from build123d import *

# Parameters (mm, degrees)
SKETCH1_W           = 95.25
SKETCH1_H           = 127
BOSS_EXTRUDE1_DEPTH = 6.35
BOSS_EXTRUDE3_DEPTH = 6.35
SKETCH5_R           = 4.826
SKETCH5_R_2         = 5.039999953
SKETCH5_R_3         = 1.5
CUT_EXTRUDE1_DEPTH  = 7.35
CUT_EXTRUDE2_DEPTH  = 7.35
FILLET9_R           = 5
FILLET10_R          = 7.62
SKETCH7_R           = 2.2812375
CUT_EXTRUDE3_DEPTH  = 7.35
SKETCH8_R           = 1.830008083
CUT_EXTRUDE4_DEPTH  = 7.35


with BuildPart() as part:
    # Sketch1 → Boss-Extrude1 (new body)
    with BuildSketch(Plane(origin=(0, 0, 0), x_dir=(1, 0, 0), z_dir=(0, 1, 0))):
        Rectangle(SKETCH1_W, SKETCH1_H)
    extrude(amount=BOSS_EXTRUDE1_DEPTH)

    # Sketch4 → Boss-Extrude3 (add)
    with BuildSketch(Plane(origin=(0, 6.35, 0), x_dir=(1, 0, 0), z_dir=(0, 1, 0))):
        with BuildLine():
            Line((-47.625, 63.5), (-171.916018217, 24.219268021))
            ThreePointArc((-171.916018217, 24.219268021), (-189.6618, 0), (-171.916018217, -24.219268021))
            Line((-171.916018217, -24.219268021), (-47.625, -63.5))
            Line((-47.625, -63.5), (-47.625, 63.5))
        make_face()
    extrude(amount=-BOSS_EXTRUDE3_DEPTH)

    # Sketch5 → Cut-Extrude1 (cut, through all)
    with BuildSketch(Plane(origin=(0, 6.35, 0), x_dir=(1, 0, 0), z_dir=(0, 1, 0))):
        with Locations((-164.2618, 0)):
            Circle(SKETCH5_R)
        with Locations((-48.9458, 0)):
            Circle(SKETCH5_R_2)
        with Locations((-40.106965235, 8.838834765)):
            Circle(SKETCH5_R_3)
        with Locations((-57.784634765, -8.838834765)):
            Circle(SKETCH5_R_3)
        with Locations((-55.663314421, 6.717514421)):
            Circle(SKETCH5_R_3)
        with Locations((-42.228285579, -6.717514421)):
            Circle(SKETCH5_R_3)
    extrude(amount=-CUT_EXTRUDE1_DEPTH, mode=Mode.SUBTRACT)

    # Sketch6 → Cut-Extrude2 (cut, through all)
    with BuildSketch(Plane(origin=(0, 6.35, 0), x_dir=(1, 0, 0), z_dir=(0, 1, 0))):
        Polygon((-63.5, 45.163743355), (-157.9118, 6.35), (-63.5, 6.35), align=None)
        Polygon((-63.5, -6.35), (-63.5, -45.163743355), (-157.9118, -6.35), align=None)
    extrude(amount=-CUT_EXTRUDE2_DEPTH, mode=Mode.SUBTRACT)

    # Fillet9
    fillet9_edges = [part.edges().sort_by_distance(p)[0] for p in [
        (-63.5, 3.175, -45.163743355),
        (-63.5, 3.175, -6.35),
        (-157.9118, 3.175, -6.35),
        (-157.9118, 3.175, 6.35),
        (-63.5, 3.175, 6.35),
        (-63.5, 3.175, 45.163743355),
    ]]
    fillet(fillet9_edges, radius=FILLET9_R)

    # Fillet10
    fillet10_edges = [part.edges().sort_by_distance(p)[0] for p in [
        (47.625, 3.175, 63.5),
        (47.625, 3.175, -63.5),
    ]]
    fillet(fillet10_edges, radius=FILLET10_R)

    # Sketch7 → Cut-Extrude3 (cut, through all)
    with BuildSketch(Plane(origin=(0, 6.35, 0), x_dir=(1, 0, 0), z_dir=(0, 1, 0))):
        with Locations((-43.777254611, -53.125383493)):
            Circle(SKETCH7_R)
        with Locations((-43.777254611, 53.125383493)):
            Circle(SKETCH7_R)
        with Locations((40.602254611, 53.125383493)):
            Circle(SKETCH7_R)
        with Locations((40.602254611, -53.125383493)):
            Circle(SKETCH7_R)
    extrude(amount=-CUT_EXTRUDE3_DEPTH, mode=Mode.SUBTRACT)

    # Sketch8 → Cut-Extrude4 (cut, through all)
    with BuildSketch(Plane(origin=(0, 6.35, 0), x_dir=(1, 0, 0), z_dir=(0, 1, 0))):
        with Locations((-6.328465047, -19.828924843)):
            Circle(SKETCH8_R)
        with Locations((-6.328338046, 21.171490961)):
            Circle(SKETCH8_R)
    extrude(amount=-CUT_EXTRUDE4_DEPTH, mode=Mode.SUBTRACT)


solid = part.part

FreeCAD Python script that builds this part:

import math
import FreeCAD as App
import Part
import Sketcher
from FreeCAD import Vector
Q = App.Units.Quantity


def edges_at(feature, points):
    """Names of the edges that pass closest to the given points."""
    edges = feature.Shape.Edges
    near = lambda p: min(range(len(edges)), key=lambda i: edges[i].distToShape(Part.Vertex(*p))[0])
    return sorted({f"Edge{near(p) + 1}" for p in points})


def add_polygon(sketch, points):
    """Adds a closed chain of lines whose ends are joined by coincident constraints."""
    first, n = sketch.GeometryCount, len(points)
    for a, b in zip(points, points[1:] + points[:1]):
        sketch.addGeometry(Part.LineSegment(App.Vector(*a, 0), App.Vector(*b, 0)), False)
    for i in range(n):
        sketch.addConstraint(Sketcher.Constraint("Coincident", first + i, 2, first + (i + 1) % n, 1))

doc = App.newDocument("Part")
body = doc.addObject("PartDesign::Body", "Body")

sketch1 = doc.addObject("Sketcher::SketchObject", "Sketch")
body.addObject(sketch1)
sketch1.AttachmentSupport = (doc.XZ_Plane, [""])
sketch1.MapMode = "FlatFace"
add_polygon(sketch1, [(-48, -64), (-48, 64), (48, 64), (48, -64)])
sketch1.addConstraint(Sketcher.Constraint("Vertical", 0))
sketch1.addConstraint(Sketcher.Constraint("Horizontal", 1))
sketch1.addConstraint(Sketcher.Constraint("Vertical", 2))
sketch1.addConstraint(Sketcher.Constraint("Horizontal", 3))
sketch1.addConstraint(Sketcher.Constraint("Symmetric", 0, 2, 2, 2, -1, 1))
sketch1.addConstraint(Sketcher.Constraint("DistanceY", 0, 1, 0, 2, Q("5 in")))
sketch1.addConstraint(Sketcher.Constraint("DistanceX", 1, 1, 1, 2, Q("3.75 in")))
pad1 = doc.addObject("PartDesign::Pad", "Pad")
body.addObject(pad1)
pad1.Profile = sketch1
pad1.Length = Q("0.25 in")
pad1.Reversed = True

sketch2 = doc.addObject("Sketcher::SketchObject", "Sketch001")
body.addObject(sketch2)
sketch2.AttachmentSupport = (doc.XZ_Plane, [""])
sketch2.MapMode = "FlatFace"
sketch2.AttachmentOffset = App.Placement(Vector(0, 0, -0.25 * 25.4), App.Rotation())
sketch2.addGeometry(Part.LineSegment(Vector(-48, -64, 0), Vector(-172, -24, 0)), False)
sketch2.addGeometry(Part.ArcOfCircle(Part.Circle(Vector(-164, 0, 0), Vector(0, 0, 1), 25), math.radians(108), math.radians(252)), False)
sketch2.addGeometry(Part.LineSegment(Vector(-172, 24, 0), Vector(-48, 64, 0)), False)
sketch2.addGeometry(Part.LineSegment(Vector(-48, 64, 0), Vector(-48, -64, 0)), False)
sketch2.addConstraint(Sketcher.Constraint("Tangent", 0, 2, 1, 2))
sketch2.addConstraint(Sketcher.Constraint("Tangent", 1, 1, 2, 1))
sketch2.addConstraint(Sketcher.Constraint("Coincident", 2, 2, 3, 1))
sketch2.addConstraint(Sketcher.Constraint("Coincident", 3, 2, 0, 1))
sketch2.addConstraint(Sketcher.Constraint("Vertical", 3))
sketch2.addConstraint(Sketcher.Constraint("Symmetric", 0, 2, 1, 1, -1))
sketch2.addConstraint(Sketcher.Constraint("Radius", 1, Q("1 in")))
sketch2.addConstraint(Sketcher.Constraint("DistanceY", 3, 2, 3, 1, Q("5 in")))
sketch2.addConstraint(Sketcher.Constraint("DistanceX", 1, 3, -1, 1, Q("6.467 in")))
sketch2.addConstraint(Sketcher.Constraint("DistanceX", 2, 2, -1, 1, Q("1.875 in")))
pad2 = doc.addObject("PartDesign::Pad", "Pad001")
body.addObject(pad2)
pad2.Profile = sketch2
pad2.Length = Q("0.25 in")

sketch3 = doc.addObject("Sketcher::SketchObject", "Sketch002")
body.addObject(sketch3)
sketch3.AttachmentSupport = (doc.XZ_Plane, [""])
sketch3.MapMode = "FlatFace"
sketch3.AttachmentOffset = App.Placement(Vector(0, 0, -0.25 * 25.4), App.Rotation())
sketch3.addGeometry(Part.Circle(Vector(-164.3, 0, 0), Vector(0, 0, 1), 4.8), False)
sketch3.addGeometry(Part.Circle(Vector(-48.9, 0, 0), Vector(0, 0, 1), 5), False)
sketch3.addGeometry(Part.Circle(Vector(-40.1, -8.8, 0), Vector(0, 0, 1), 1.5), False)
sketch3.addGeometry(Part.Circle(Vector(-57.8, 8.8, 0), Vector(0, 0, 1), 1.5), False)
sketch3.addGeometry(Part.Circle(Vector(-55.7, -6.7, 0), Vector(0, 0, 1), 1.5), False)
sketch3.addGeometry(Part.Circle(Vector(-42.2, 6.7, 0), Vector(0, 0, 1), 1.5), False)
sketch3.addConstraint(Sketcher.Constraint("Equal", 2, 3))
sketch3.addConstraint(Sketcher.Constraint("Equal", 3, 4))
sketch3.addConstraint(Sketcher.Constraint("Equal", 4, 5))
sketch3.addConstraint(Sketcher.Constraint("PointOnObject", 0, 3, -1))
sketch3.addConstraint(Sketcher.Constraint("PointOnObject", 1, 3, -1))
sketch3.addConstraint(Sketcher.Constraint("Diameter", 0, Q("0.38 in")))
sketch3.addConstraint(Sketcher.Constraint("Diameter", 1, Q("10.08 mm")))
sketch3.addConstraint(Sketcher.Constraint("Diameter", 2, Q("3 mm")))
sketch3.addConstraint(Sketcher.Constraint("DistanceX", 0, 3, 1, 3, Q("4.54 in")))
sketch3.addConstraint(Sketcher.Constraint("DistanceX", 0, 3, -1, 1, Q("6.467 in")))
sketch3.addConstraint(Sketcher.Constraint("DistanceX", 3, 3, 2, 3, Q("17.67767 mm")))
sketch3.addConstraint(Sketcher.Constraint("DistanceY", 2, 3, 3, 3, Q("17.67767 mm")))
sketch3.addConstraint(Sketcher.Constraint("DistanceX", 3, 3, 4, 3, Q("2.12132 mm")))
sketch3.addConstraint(Sketcher.Constraint("DistanceY", 4, 3, 3, 3, Q("15.556349 mm")))
sketch3.addConstraint(Sketcher.Constraint("DistanceX", 5, 3, 2, 3, Q("2.12132 mm")))
sketch3.addConstraint(Sketcher.Constraint("DistanceY", 2, 3, 5, 3, Q("15.556349 mm")))
sketch3.addConstraint(Sketcher.Constraint("DistanceX", 2, 3, -1, 1, Q("40.106965 mm")))
sketch3.addConstraint(Sketcher.Constraint("DistanceY", 2, 3, -1, 1, Q("8.838835 mm")))
pocket1 = doc.addObject("PartDesign::Pocket", "Pocket")
body.addObject(pocket1)
pocket1.Profile = sketch3
pocket1.Type = "ThroughAll"
pocket1.Reversed = True

sketch4 = doc.addObject("Sketcher::SketchObject", "Sketch003")
body.addObject(sketch4)
sketch4.AttachmentSupport = (doc.XZ_Plane, [""])
sketch4.MapMode = "FlatFace"
sketch4.AttachmentOffset = App.Placement(Vector(0, 0, -0.25 * 25.4), App.Rotation())
add_polygon(sketch4, [(-64, -45), (-158, -6), (-64, -6)])
add_polygon(sketch4, [(-64, 45), (-64, 6), (-158, 6)])
sketch4.addConstraint(Sketcher.Constraint("Horizontal", 1))
sketch4.addConstraint(Sketcher.Constraint("Vertical", 2))
sketch4.addConstraint(Sketcher.Constraint("Vertical", 3))
sketch4.addConstraint(Sketcher.Constraint("Horizontal", 4))
sketch4.addConstraint(Sketcher.Constraint("Symmetric", 1, 2, 3, 2, -1))
sketch4.addConstraint(Sketcher.Constraint("Vertical", 0, 2, 4, 2))
sketch4.addConstraint(Sketcher.Constraint("Equal", 2, 3))
sketch4.addConstraint(Sketcher.Constraint("DistanceX", 1, 2, -1, 1, Q("2.5 in")))
sketch4.addConstraint(Sketcher.Constraint("DistanceY", 1, 2, 3, 2, Q("0.5 in")))
sketch4.addConstraint(Sketcher.Constraint("DistanceX", 1, 1, 1, 2, Q("3.717 in")))
sketch4.addConstraint(Sketcher.Constraint("DistanceY", 2, 2, 2, 1, Q("1.5281001 in")))
pocket2 = doc.addObject("PartDesign::Pocket", "Pocket001")
body.addObject(pocket2)
pocket2.Profile = sketch4
pocket2.Type = "ThroughAll"
pocket2.Reversed = True
doc.recompute()

fillet = doc.addObject("PartDesign::Fillet", "Fillet")
body.addObject(fillet)
fillet.Base = (pocket2, edges_at(pocket2, [
    (-63.5, 3.175, -45.164),
    (-63.5, 3.175, -6.35),
    (-157.912, 3.175, -6.35),
    (-157.912, 3.175, 6.35),
    (-63.5, 3.175, 6.35),
    (-63.5, 3.175, 45.164),
]))
fillet.Radius = 5
doc.recompute()

fillet2 = doc.addObject("PartDesign::Fillet", "Fillet001")
body.addObject(fillet2)
fillet2.Base = (fillet, edges_at(fillet, [(47.625, 3.175, 63.5), (47.625, 3.175, -63.5)]))
fillet2.Radius = Q("0.3 in")

sketch5 = doc.addObject("Sketcher::SketchObject", "Sketch004")
body.addObject(sketch5)
sketch5.AttachmentSupport = (doc.XZ_Plane, [""])
sketch5.MapMode = "FlatFace"
sketch5.AttachmentOffset = App.Placement(Vector(0, 0, -0.25 * 25.4), App.Rotation())
sketch5.addGeometry(Part.Circle(Vector(-43.8, 53.1, 0), Vector(0, 0, 1), 2.3), False)
sketch5.addGeometry(Part.Circle(Vector(-43.8, -53.1, 0), Vector(0, 0, 1), 2.3), False)
sketch5.addGeometry(Part.Circle(Vector(40.6, -53.1, 0), Vector(0, 0, 1), 2.3), False)
sketch5.addGeometry(Part.Circle(Vector(40.6, 53.1, 0), Vector(0, 0, 1), 2.3), False)
sketch5.addConstraint(Sketcher.Constraint("Equal", 0, 1))
sketch5.addConstraint(Sketcher.Constraint("Equal", 1, 2))
sketch5.addConstraint(Sketcher.Constraint("Equal", 2, 3))
sketch5.addConstraint(Sketcher.Constraint("Symmetric", 0, 3, 1, 3, -1))
sketch5.addConstraint(Sketcher.Constraint("Symmetric", 2, 3, 3, 3, -1))
sketch5.addConstraint(Sketcher.Constraint("Horizontal", 1, 3, 2, 3))
sketch5.addConstraint(Sketcher.Constraint("Diameter", 0, Q("4.562475 mm")))
sketch5.addConstraint(Sketcher.Constraint("DistanceX", 1, 3, 2, 3, Q("84.379509 mm")))
sketch5.addConstraint(Sketcher.Constraint("DistanceX", 0, 3, -1, 1, Q("43.777255 mm")))
sketch5.addConstraint(Sketcher.Constraint("DistanceY", -1, 1, 0, 3, Q("53.125383 mm")))
pocket3 = doc.addObject("PartDesign::Pocket", "Pocket002")
body.addObject(pocket3)
pocket3.Profile = sketch5
pocket3.Type = "ThroughAll"
pocket3.Reversed = True

sketch6 = doc.addObject("Sketcher::SketchObject", "Sketch005")
body.addObject(sketch6)
sketch6.AttachmentSupport = (doc.XZ_Plane, [""])
sketch6.MapMode = "FlatFace"
sketch6.AttachmentOffset = App.Placement(Vector(0, 0, -0.25 * 25.4), App.Rotation())
sketch6.addGeometry(Part.Circle(Vector(-6.3, 19.8, 0), Vector(0, 0, 1), 1.8), False)
sketch6.addGeometry(Part.Circle(Vector(-6.3, -21.2, 0), Vector(0, 0, 1), 1.8), False)
sketch6.addConstraint(Sketcher.Constraint("Equal", 0, 1))
sketch6.addConstraint(Sketcher.Constraint("Diameter", 0, Q("3.660016 mm")))
sketch6.addConstraint(Sketcher.Constraint("DistanceX", 1, 3, -1, 1, Q("6.328338 mm")))
sketch6.addConstraint(Sketcher.Constraint("DistanceY", 1, 3, -1, 1, Q("21.171491 mm")))
sketch6.addConstraint(Sketcher.Constraint("DistanceX", 0, 3, -1, 1, Q("6.328465 mm")))
sketch6.addConstraint(Sketcher.Constraint("DistanceY", -1, 1, 0, 3, Q("19.828925 mm")))
pocket4 = doc.addObject("PartDesign::Pocket", "Pocket003")
body.addObject(pocket4)
pocket4.Profile = sketch6
pocket4.Type = "ThroughAll"
pocket4.Reversed = True

doc.recompute()
